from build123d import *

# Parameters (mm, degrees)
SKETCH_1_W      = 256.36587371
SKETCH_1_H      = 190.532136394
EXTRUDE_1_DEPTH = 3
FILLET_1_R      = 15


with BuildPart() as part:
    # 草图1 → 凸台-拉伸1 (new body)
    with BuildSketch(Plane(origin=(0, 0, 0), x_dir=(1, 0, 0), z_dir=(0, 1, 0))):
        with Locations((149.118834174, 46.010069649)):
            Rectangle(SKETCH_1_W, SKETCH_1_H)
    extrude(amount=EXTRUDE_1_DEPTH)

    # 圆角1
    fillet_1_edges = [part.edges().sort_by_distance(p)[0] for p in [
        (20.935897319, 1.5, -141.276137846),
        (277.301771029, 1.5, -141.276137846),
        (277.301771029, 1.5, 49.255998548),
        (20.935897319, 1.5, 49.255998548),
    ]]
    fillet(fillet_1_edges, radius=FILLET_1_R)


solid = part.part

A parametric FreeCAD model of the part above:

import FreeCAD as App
import Part
import Sketcher
from FreeCAD import Vector
Q = App.Units.Quantity


def edges_at(feature, points):
    """Names of the edges that pass closest to the given points."""
    edges = feature.Shape.Edges
    near = lambda p: min(range(len(edges)), key=lambda i: edges[i].distToShape(Part.Vertex(*p))[0])
    return sorted({f"Edge{near(p) + 1}" for p in points})

doc = App.newDocument("Part")
params = doc.addObject("Spreadsheet::Sheet", "Params")
for row, (alias, value) in enumerate([
    ("pad1_length", "3 mm"),
    ("fillet_radius", "15 mm"),
], start=1):
    params.set(f"A{row}", alias)
    params.set(f"B{row}", "=" + value)
    params.setAlias(f"B{row}", alias)

body = doc.addObject("PartDesign::Body", "Body")

sketch1 = body.newObject("Sketcher::SketchObject", "Sketch")
sketch1.AttachmentSupport = (doc.getObject("XZ_Plane"), [""])
sketch1.MapMode = "FlatFace"
sketch1.addGeometry([
    Part.LineSegment(Vector(21, -141, 0), Vector(21, 49, 0)),
    Part.LineSegment(Vector(21, 49, 0), Vector(277, 49, 0)),
    Part.LineSegment(Vector(277, 49, 0), Vector(277, -141, 0)),
    Part.LineSegment(Vector(277, -141, 0), Vector(21, -141, 0)),
], False)
sketch1.addConstraint([
    Sketcher.Constraint("Coincident", 0, 2, 1, 1),
    Sketcher.Constraint("Coincident", 1, 2, 2, 1),
    Sketcher.Constraint("Coincident", 2, 2, 3, 1),
    Sketcher.Constraint("Coincident", 3, 2, 0, 1),
    Sketcher.Constraint("Vertical", 0),
    Sketcher.Constraint("Horizontal", 1),
    Sketcher.Constraint("Vertical", 2),
    Sketcher.Constraint("Horizontal", 3),
    Sketcher.Constraint("DistanceY", -1, 1, 0, 2, Q("49.255999 mm")),
    Sketcher.Constraint("DistanceX", 1, 1, 1, 2, Q("256.365874 mm")),
    Sketcher.Constraint("DistanceY", 0, 1, 0, 2, Q("190.532136 mm")),
    Sketcher.Constraint("DistanceX", -1, 1, 1, 2, Q("277.301771 mm")),
])
pad1 = body.newObject("PartDesign::Pad", "Pad")
pad1.Profile = sketch1
pad1.setExpression("Length", "Params.pad1_length")
pad1.Reversed = True
doc.recompute()

fillet = body.newObject("PartDesign::Fillet", "Fillet")
fillet.Base = (pad1, edges_at(pad1, [
    (20.936, 1.5, -141.276),
    (277.302, 1.5, -141.276),
    (277.302, 1.5, 49.256),
    (20.936, 1.5, 49.256),
]))
fillet.setExpression("Radius", "Params.fillet_radius")

doc.recompute()
